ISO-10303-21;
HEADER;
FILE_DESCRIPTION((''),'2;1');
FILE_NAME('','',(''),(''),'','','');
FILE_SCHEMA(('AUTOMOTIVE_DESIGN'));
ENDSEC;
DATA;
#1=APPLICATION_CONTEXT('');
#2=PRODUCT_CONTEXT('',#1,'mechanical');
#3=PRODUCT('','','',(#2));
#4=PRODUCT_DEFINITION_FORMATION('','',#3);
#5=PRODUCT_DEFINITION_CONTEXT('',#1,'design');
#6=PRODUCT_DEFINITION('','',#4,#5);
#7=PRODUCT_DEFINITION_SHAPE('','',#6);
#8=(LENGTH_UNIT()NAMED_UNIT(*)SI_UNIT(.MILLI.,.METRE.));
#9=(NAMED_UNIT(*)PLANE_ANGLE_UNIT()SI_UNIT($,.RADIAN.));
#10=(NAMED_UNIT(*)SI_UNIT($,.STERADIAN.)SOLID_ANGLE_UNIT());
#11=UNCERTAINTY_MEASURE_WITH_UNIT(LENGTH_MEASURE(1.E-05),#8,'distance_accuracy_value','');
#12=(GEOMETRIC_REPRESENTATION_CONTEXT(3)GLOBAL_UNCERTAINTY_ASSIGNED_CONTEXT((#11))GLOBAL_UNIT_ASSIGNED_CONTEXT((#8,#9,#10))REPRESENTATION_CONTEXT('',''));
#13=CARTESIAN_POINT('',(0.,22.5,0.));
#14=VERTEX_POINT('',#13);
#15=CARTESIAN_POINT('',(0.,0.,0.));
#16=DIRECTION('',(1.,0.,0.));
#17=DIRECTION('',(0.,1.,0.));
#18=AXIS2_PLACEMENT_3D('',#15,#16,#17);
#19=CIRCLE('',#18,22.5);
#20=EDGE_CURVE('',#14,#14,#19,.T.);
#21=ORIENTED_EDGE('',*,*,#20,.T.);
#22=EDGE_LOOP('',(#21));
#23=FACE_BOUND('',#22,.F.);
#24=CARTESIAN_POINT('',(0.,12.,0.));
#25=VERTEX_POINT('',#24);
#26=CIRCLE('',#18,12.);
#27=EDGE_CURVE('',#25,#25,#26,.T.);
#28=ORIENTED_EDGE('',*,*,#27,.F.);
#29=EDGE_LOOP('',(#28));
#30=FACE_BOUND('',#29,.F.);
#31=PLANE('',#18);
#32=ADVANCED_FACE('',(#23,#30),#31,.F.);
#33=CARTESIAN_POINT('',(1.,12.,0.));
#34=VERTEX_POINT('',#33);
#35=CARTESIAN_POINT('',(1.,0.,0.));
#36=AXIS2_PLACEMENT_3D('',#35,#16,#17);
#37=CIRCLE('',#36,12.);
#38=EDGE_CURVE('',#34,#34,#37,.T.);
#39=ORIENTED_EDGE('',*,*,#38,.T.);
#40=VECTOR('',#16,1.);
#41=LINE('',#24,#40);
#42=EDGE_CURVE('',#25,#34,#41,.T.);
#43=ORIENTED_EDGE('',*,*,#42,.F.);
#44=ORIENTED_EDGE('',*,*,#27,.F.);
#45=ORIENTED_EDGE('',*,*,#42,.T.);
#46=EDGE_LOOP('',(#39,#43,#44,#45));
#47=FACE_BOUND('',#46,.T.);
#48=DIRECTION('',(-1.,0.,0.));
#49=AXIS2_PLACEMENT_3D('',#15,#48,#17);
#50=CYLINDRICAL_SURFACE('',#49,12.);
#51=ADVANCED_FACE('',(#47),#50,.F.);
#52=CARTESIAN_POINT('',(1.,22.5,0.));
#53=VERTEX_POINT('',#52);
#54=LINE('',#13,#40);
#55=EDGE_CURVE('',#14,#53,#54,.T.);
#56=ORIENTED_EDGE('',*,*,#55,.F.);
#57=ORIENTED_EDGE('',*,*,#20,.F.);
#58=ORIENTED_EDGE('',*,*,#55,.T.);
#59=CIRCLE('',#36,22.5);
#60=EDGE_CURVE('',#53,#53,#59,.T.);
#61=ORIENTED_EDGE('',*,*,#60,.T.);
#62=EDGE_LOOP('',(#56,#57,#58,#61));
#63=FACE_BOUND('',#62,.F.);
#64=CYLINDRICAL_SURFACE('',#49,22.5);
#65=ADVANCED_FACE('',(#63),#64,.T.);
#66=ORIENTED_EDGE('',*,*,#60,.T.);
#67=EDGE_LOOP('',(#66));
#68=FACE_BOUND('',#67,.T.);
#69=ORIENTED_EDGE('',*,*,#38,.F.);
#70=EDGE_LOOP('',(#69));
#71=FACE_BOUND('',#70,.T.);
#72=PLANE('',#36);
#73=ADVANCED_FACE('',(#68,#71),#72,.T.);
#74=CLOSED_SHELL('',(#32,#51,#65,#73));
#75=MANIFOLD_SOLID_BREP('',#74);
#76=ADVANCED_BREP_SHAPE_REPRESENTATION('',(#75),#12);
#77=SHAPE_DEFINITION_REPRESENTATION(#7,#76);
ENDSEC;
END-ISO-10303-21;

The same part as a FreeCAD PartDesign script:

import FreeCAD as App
import Part
import Sketcher

V = App.Vector
Q = App.Units.Quantity

doc = App.newDocument("Part")
body = doc.addObject("PartDesign::Body", "Body")

# Sketch on YZ plane
sketch1 = body.newObject("Sketcher::SketchObject", "Sketch")
sketch1.AttachmentSupport = (doc.getObject("YZ_Plane"), [""])
sketch1.MapMode = "FlatFace"
sketch1.addGeometry([
    Part.Circle(V(0, 0, 0), V(0, 0, 1), 22.5),
    Part.Circle(V(0, 0, 0), V(0, 0, 1), 12),
], False)
sketch1.addConstraint([
    Sketcher.Constraint("Coincident", 0, 3, -1, 1),
    Sketcher.Constraint("Coincident", 1, 3, -1, 1),
    Sketcher.Constraint("Diameter", 0, Q("45 mm")),
    Sketcher.Constraint("Diameter", 1, Q("24 mm")),
])
pad1 = body.newObject("PartDesign::Pad", "Pad")
pad1.Profile = sketch1
pad1.Length = 1

doc.recompute()
